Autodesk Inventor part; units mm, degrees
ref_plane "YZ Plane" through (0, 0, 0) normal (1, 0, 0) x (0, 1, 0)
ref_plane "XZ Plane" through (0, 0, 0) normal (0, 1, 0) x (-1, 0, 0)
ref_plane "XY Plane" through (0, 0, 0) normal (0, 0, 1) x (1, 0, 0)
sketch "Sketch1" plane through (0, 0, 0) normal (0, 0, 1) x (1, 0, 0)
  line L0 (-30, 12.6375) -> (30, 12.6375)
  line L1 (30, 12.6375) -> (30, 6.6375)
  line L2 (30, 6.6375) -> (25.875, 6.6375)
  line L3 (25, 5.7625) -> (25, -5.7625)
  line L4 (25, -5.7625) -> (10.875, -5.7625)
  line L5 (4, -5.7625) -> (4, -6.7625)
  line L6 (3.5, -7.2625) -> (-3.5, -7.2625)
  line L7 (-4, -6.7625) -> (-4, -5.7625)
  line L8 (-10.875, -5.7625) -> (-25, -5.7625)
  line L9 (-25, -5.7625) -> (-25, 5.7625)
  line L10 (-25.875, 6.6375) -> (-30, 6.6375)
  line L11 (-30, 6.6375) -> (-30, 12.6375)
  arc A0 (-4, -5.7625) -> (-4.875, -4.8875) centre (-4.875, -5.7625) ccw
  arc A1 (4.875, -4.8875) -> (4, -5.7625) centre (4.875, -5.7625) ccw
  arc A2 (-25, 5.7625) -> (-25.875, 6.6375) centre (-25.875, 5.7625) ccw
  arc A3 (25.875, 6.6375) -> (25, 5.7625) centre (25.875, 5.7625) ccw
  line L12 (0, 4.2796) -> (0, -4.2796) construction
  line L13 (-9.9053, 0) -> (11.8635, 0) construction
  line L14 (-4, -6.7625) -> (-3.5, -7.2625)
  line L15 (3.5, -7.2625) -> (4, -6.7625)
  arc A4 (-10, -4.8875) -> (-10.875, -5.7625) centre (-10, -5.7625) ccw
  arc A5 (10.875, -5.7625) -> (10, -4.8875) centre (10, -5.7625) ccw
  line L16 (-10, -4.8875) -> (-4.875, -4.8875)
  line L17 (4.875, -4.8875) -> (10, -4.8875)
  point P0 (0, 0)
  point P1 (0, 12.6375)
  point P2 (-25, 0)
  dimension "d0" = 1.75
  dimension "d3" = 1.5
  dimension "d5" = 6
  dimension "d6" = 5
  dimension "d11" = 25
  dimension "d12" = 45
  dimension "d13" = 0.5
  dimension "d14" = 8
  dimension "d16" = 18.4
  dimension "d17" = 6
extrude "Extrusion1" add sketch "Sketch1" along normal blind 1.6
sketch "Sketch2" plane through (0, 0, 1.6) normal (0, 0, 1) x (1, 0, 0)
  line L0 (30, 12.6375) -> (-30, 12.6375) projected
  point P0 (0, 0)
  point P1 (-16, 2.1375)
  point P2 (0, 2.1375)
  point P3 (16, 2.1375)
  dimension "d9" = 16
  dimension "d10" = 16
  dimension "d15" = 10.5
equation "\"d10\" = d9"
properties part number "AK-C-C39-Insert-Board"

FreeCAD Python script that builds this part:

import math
import FreeCAD as App
import Part
import Sketcher

doc = App.newDocument("Part")
params = doc.addObject("Spreadsheet::Sheet", "Params")
for row, (alias, value) in enumerate([
    ("sketch1_height", "6 mm"),
    ("pad1_length", "1.6 mm"),
], start=1):
    params.set(f"A{row}", alias)
    params.set(f"B{row}", "=" + value)
    params.setAlias(f"B{row}", alias)

body = doc.addObject("PartDesign::Body", "Body")

# Sketch on XY plane
sketch1 = doc.addObject("Sketcher::SketchObject", "Sketch")
body.addObject(sketch1)
sketch1.AttachmentSupport = (doc.XY_Plane, [""])
sketch1.MapMode = "FlatFace"
sketch1.addGeometry([
    Part.LineSegment(App.Vector(30, 12.6, 0), App.Vector(-30, 12.6, 0)),  # 0
    Part.LineSegment(App.Vector(-30, 12.6, 0), App.Vector(-30, 6.6, 0)),  # 1
    Part.LineSegment(App.Vector(-30, 6.6, 0), App.Vector(-25.9, 6.6, 0)),  # 2
    Part.ArcOfCircle(Part.Circle(App.Vector(-25.9, 5.8, 0), App.Vector(0, 0, 1), 0.9), math.radians(0), math.radians(90)),  # 3
    Part.LineSegment(App.Vector(-25, 5.8, 0), App.Vector(-25, -5.8, 0)),  # 4
    Part.LineSegment(App.Vector(-25, -5.8, 0), App.Vector(-10.9, -5.8, 0)),  # 5
    Part.ArcOfCircle(Part.Circle(App.Vector(-10, -5.8, 0), App.Vector(0, 0, 1), 0.9), math.radians(90), math.radians(180)),  # 6
    Part.LineSegment(App.Vector(-10, -4.9, 0), App.Vector(-4.9, -4.9, 0)),  # 7
    Part.ArcOfCircle(Part.Circle(App.Vector(-4.9, -5.8, 0), App.Vector(0, 0, 1), 0.9), math.radians(0), math.radians(90)),  # 8
    Part.LineSegment(App.Vector(-4, -5.8, 0), App.Vector(-4, -6.8, 0)),  # 9
    Part.LineSegment(App.Vector(-4, -6.8, 0), App.Vector(-3.5, -7.3, 0)),  # 10
    Part.LineSegment(App.Vector(-3.5, -7.3, 0), App.Vector(3.5, -7.3, 0)),  # 11
    Part.LineSegment(App.Vector(3.5, -7.3, 0), App.Vector(4, -6.8, 0)),  # 12
    Part.LineSegment(App.Vector(4, -6.8, 0), App.Vector(4, -5.8, 0)),  # 13
    Part.ArcOfCircle(Part.Circle(App.Vector(4.9, -5.8, 0), App.Vector(0, 0, 1), 0.9), math.radians(90), math.radians(180)),  # 14
    Part.LineSegment(App.Vector(4.9, -4.9, 0), App.Vector(10, -4.9, 0)),  # 15
    Part.ArcOfCircle(Part.Circle(App.Vector(10, -5.8, 0), App.Vector(0, 0, 1), 0.9), math.radians(0), math.radians(90)),  # 16
    Part.LineSegment(App.Vector(10.9, -5.8, 0), App.Vector(25, -5.8, 0)),  # 17
    Part.LineSegment(App.Vector(25, -5.8, 0), App.Vector(25, 5.8, 0)),  # 18
    Part.ArcOfCircle(Part.Circle(App.Vector(25.9, 5.8, 0), App.Vector(0, 0, 1), 0.9), math.radians(90), math.radians(180)),  # 19
    Part.LineSegment(App.Vector(25.9, 6.6, 0), App.Vector(30, 6.6, 0)),  # 20
    Part.LineSegment(App.Vector(30, 6.6, 0), App.Vector(30, 12.6, 0)),  # 21
], False)
sketch1.addConstraint([
    Sketcher.Constraint("Coincident", 0, 2, 1, 1),
    Sketcher.Constraint("Coincident", 1, 2, 2, 1),
    Sketcher.Constraint("Tangent", 2, 2, 3, 2),
    Sketcher.Constraint("Tangent", 3, 1, 4, 1),
    Sketcher.Constraint("Coincident", 4, 2, 5, 1),
    Sketcher.Constraint("Coincident", 5, 2, 6, 2),
    Sketcher.Constraint("Tangent", 6, 1, 7, 1),
    Sketcher.Constraint("Tangent", 7, 2, 8, 2),
    Sketcher.Constraint("Tangent", 8, 1, 9, 1),
    Sketcher.Constraint("Coincident", 9, 2, 10, 1),
    Sketcher.Constraint("Coincident", 10, 2, 11, 1),
    Sketcher.Constraint("Coincident", 11, 2, 12, 1),
    Sketcher.Constraint("Coincident", 12, 2, 13, 1),
    Sketcher.Constraint("Tangent", 13, 2, 14, 2),
    Sketcher.Constraint("Tangent", 14, 1, 15, 1),
    Sketcher.Constraint("Tangent", 15, 2, 16, 2),
    Sketcher.Constraint("Coincident", 16, 1, 17, 1),
    Sketcher.Constraint("Coincident", 17, 2, 18, 1),
    Sketcher.Constraint("Tangent", 18, 2, 19, 2),
    Sketcher.Constraint("Tangent", 19, 1, 20, 1),
    Sketcher.Constraint("Coincident", 20, 2, 21, 1),
    Sketcher.Constraint("Coincident", 21, 2, 0, 1),
    Sketcher.Constraint("Horizontal", 0),
    Sketcher.Constraint("Vertical", 1),
    Sketcher.Constraint("Horizontal", 2),
    Sketcher.Constraint("Vertical", 4),
    Sketcher.Constraint("Horizontal", 5),
    Sketcher.Constraint("Horizontal", 7),
    Sketcher.Constraint("Vertical", 9),
    Sketcher.Constraint("Horizontal", 11),
    Sketcher.Constraint("Vertical", 13),
    Sketcher.Constraint("Horizontal", 15),
    Sketcher.Constraint("Horizontal", 17),
    Sketcher.Constraint("Vertical", 18),
    Sketcher.Constraint("Horizontal", 20),
    Sketcher.Constraint("Vertical", 21),
    Sketcher.Constraint("Equal", 3, 6),
    Sketcher.Constraint("Equal", 6, 8),
    Sketcher.Constraint("Equal", 8, 14),
    Sketcher.Constraint("Equal", 14, 16),
    Sketcher.Constraint("Equal", 16, 19),
    Sketcher.Constraint("Symmetric", 3, 1, 17, 2, -1, 1),
    Sketcher.Constraint("Symmetric", 8, 3, 14, 3, -2),
    Sketcher.Constraint("Symmetric", 5, 2, 16, 1, -2),
    Sketcher.Constraint("Symmetric", 1, 2, 20, 2, -2),
    Sketcher.Constraint("Perpendicular", 10, 12),
    Sketcher.Constraint("Horizontal", 16, 3, 4, 2),
    Sketcher.Constraint("Horizontal", 9, 2, 12, 2),
    Sketcher.Constraint("Equal", 10, 12),
    Sketcher.Constraint("DistanceY", 1, 2, 1, 1, 6.0),
    Sketcher.Constraint("DistanceX", 3, 1, -1, 1, 25.0),
    Sketcher.Constraint("Radius", 3, 0.875),
    Sketcher.Constraint("DistanceX", 1, 2, 3, 1, 5.0),
    Sketcher.Constraint("DistanceX", 5, 2, 8, 3, 6.0),
    Sketcher.Constraint("DistanceX", 9, 2, 12, 2, 8.0),
    Sketcher.Constraint("DistanceY", 6, 3, 0, 2, 18.4),
    Sketcher.Constraint("DistanceX", 9, 2, 10, 2, 0.5),
    Sketcher.Constraint("DistanceY", 10, 2, 8, 1, 1.5),
])
sketch1.setExpression("Constraints[49]", "Params.sketch1_height")
pad1 = doc.addObject("PartDesign::Pad", "Pad")
body.addObject(pad1)
pad1.Profile = sketch1
pad1.setExpression("Length", "Params.pad1_length")

doc.recompute()
